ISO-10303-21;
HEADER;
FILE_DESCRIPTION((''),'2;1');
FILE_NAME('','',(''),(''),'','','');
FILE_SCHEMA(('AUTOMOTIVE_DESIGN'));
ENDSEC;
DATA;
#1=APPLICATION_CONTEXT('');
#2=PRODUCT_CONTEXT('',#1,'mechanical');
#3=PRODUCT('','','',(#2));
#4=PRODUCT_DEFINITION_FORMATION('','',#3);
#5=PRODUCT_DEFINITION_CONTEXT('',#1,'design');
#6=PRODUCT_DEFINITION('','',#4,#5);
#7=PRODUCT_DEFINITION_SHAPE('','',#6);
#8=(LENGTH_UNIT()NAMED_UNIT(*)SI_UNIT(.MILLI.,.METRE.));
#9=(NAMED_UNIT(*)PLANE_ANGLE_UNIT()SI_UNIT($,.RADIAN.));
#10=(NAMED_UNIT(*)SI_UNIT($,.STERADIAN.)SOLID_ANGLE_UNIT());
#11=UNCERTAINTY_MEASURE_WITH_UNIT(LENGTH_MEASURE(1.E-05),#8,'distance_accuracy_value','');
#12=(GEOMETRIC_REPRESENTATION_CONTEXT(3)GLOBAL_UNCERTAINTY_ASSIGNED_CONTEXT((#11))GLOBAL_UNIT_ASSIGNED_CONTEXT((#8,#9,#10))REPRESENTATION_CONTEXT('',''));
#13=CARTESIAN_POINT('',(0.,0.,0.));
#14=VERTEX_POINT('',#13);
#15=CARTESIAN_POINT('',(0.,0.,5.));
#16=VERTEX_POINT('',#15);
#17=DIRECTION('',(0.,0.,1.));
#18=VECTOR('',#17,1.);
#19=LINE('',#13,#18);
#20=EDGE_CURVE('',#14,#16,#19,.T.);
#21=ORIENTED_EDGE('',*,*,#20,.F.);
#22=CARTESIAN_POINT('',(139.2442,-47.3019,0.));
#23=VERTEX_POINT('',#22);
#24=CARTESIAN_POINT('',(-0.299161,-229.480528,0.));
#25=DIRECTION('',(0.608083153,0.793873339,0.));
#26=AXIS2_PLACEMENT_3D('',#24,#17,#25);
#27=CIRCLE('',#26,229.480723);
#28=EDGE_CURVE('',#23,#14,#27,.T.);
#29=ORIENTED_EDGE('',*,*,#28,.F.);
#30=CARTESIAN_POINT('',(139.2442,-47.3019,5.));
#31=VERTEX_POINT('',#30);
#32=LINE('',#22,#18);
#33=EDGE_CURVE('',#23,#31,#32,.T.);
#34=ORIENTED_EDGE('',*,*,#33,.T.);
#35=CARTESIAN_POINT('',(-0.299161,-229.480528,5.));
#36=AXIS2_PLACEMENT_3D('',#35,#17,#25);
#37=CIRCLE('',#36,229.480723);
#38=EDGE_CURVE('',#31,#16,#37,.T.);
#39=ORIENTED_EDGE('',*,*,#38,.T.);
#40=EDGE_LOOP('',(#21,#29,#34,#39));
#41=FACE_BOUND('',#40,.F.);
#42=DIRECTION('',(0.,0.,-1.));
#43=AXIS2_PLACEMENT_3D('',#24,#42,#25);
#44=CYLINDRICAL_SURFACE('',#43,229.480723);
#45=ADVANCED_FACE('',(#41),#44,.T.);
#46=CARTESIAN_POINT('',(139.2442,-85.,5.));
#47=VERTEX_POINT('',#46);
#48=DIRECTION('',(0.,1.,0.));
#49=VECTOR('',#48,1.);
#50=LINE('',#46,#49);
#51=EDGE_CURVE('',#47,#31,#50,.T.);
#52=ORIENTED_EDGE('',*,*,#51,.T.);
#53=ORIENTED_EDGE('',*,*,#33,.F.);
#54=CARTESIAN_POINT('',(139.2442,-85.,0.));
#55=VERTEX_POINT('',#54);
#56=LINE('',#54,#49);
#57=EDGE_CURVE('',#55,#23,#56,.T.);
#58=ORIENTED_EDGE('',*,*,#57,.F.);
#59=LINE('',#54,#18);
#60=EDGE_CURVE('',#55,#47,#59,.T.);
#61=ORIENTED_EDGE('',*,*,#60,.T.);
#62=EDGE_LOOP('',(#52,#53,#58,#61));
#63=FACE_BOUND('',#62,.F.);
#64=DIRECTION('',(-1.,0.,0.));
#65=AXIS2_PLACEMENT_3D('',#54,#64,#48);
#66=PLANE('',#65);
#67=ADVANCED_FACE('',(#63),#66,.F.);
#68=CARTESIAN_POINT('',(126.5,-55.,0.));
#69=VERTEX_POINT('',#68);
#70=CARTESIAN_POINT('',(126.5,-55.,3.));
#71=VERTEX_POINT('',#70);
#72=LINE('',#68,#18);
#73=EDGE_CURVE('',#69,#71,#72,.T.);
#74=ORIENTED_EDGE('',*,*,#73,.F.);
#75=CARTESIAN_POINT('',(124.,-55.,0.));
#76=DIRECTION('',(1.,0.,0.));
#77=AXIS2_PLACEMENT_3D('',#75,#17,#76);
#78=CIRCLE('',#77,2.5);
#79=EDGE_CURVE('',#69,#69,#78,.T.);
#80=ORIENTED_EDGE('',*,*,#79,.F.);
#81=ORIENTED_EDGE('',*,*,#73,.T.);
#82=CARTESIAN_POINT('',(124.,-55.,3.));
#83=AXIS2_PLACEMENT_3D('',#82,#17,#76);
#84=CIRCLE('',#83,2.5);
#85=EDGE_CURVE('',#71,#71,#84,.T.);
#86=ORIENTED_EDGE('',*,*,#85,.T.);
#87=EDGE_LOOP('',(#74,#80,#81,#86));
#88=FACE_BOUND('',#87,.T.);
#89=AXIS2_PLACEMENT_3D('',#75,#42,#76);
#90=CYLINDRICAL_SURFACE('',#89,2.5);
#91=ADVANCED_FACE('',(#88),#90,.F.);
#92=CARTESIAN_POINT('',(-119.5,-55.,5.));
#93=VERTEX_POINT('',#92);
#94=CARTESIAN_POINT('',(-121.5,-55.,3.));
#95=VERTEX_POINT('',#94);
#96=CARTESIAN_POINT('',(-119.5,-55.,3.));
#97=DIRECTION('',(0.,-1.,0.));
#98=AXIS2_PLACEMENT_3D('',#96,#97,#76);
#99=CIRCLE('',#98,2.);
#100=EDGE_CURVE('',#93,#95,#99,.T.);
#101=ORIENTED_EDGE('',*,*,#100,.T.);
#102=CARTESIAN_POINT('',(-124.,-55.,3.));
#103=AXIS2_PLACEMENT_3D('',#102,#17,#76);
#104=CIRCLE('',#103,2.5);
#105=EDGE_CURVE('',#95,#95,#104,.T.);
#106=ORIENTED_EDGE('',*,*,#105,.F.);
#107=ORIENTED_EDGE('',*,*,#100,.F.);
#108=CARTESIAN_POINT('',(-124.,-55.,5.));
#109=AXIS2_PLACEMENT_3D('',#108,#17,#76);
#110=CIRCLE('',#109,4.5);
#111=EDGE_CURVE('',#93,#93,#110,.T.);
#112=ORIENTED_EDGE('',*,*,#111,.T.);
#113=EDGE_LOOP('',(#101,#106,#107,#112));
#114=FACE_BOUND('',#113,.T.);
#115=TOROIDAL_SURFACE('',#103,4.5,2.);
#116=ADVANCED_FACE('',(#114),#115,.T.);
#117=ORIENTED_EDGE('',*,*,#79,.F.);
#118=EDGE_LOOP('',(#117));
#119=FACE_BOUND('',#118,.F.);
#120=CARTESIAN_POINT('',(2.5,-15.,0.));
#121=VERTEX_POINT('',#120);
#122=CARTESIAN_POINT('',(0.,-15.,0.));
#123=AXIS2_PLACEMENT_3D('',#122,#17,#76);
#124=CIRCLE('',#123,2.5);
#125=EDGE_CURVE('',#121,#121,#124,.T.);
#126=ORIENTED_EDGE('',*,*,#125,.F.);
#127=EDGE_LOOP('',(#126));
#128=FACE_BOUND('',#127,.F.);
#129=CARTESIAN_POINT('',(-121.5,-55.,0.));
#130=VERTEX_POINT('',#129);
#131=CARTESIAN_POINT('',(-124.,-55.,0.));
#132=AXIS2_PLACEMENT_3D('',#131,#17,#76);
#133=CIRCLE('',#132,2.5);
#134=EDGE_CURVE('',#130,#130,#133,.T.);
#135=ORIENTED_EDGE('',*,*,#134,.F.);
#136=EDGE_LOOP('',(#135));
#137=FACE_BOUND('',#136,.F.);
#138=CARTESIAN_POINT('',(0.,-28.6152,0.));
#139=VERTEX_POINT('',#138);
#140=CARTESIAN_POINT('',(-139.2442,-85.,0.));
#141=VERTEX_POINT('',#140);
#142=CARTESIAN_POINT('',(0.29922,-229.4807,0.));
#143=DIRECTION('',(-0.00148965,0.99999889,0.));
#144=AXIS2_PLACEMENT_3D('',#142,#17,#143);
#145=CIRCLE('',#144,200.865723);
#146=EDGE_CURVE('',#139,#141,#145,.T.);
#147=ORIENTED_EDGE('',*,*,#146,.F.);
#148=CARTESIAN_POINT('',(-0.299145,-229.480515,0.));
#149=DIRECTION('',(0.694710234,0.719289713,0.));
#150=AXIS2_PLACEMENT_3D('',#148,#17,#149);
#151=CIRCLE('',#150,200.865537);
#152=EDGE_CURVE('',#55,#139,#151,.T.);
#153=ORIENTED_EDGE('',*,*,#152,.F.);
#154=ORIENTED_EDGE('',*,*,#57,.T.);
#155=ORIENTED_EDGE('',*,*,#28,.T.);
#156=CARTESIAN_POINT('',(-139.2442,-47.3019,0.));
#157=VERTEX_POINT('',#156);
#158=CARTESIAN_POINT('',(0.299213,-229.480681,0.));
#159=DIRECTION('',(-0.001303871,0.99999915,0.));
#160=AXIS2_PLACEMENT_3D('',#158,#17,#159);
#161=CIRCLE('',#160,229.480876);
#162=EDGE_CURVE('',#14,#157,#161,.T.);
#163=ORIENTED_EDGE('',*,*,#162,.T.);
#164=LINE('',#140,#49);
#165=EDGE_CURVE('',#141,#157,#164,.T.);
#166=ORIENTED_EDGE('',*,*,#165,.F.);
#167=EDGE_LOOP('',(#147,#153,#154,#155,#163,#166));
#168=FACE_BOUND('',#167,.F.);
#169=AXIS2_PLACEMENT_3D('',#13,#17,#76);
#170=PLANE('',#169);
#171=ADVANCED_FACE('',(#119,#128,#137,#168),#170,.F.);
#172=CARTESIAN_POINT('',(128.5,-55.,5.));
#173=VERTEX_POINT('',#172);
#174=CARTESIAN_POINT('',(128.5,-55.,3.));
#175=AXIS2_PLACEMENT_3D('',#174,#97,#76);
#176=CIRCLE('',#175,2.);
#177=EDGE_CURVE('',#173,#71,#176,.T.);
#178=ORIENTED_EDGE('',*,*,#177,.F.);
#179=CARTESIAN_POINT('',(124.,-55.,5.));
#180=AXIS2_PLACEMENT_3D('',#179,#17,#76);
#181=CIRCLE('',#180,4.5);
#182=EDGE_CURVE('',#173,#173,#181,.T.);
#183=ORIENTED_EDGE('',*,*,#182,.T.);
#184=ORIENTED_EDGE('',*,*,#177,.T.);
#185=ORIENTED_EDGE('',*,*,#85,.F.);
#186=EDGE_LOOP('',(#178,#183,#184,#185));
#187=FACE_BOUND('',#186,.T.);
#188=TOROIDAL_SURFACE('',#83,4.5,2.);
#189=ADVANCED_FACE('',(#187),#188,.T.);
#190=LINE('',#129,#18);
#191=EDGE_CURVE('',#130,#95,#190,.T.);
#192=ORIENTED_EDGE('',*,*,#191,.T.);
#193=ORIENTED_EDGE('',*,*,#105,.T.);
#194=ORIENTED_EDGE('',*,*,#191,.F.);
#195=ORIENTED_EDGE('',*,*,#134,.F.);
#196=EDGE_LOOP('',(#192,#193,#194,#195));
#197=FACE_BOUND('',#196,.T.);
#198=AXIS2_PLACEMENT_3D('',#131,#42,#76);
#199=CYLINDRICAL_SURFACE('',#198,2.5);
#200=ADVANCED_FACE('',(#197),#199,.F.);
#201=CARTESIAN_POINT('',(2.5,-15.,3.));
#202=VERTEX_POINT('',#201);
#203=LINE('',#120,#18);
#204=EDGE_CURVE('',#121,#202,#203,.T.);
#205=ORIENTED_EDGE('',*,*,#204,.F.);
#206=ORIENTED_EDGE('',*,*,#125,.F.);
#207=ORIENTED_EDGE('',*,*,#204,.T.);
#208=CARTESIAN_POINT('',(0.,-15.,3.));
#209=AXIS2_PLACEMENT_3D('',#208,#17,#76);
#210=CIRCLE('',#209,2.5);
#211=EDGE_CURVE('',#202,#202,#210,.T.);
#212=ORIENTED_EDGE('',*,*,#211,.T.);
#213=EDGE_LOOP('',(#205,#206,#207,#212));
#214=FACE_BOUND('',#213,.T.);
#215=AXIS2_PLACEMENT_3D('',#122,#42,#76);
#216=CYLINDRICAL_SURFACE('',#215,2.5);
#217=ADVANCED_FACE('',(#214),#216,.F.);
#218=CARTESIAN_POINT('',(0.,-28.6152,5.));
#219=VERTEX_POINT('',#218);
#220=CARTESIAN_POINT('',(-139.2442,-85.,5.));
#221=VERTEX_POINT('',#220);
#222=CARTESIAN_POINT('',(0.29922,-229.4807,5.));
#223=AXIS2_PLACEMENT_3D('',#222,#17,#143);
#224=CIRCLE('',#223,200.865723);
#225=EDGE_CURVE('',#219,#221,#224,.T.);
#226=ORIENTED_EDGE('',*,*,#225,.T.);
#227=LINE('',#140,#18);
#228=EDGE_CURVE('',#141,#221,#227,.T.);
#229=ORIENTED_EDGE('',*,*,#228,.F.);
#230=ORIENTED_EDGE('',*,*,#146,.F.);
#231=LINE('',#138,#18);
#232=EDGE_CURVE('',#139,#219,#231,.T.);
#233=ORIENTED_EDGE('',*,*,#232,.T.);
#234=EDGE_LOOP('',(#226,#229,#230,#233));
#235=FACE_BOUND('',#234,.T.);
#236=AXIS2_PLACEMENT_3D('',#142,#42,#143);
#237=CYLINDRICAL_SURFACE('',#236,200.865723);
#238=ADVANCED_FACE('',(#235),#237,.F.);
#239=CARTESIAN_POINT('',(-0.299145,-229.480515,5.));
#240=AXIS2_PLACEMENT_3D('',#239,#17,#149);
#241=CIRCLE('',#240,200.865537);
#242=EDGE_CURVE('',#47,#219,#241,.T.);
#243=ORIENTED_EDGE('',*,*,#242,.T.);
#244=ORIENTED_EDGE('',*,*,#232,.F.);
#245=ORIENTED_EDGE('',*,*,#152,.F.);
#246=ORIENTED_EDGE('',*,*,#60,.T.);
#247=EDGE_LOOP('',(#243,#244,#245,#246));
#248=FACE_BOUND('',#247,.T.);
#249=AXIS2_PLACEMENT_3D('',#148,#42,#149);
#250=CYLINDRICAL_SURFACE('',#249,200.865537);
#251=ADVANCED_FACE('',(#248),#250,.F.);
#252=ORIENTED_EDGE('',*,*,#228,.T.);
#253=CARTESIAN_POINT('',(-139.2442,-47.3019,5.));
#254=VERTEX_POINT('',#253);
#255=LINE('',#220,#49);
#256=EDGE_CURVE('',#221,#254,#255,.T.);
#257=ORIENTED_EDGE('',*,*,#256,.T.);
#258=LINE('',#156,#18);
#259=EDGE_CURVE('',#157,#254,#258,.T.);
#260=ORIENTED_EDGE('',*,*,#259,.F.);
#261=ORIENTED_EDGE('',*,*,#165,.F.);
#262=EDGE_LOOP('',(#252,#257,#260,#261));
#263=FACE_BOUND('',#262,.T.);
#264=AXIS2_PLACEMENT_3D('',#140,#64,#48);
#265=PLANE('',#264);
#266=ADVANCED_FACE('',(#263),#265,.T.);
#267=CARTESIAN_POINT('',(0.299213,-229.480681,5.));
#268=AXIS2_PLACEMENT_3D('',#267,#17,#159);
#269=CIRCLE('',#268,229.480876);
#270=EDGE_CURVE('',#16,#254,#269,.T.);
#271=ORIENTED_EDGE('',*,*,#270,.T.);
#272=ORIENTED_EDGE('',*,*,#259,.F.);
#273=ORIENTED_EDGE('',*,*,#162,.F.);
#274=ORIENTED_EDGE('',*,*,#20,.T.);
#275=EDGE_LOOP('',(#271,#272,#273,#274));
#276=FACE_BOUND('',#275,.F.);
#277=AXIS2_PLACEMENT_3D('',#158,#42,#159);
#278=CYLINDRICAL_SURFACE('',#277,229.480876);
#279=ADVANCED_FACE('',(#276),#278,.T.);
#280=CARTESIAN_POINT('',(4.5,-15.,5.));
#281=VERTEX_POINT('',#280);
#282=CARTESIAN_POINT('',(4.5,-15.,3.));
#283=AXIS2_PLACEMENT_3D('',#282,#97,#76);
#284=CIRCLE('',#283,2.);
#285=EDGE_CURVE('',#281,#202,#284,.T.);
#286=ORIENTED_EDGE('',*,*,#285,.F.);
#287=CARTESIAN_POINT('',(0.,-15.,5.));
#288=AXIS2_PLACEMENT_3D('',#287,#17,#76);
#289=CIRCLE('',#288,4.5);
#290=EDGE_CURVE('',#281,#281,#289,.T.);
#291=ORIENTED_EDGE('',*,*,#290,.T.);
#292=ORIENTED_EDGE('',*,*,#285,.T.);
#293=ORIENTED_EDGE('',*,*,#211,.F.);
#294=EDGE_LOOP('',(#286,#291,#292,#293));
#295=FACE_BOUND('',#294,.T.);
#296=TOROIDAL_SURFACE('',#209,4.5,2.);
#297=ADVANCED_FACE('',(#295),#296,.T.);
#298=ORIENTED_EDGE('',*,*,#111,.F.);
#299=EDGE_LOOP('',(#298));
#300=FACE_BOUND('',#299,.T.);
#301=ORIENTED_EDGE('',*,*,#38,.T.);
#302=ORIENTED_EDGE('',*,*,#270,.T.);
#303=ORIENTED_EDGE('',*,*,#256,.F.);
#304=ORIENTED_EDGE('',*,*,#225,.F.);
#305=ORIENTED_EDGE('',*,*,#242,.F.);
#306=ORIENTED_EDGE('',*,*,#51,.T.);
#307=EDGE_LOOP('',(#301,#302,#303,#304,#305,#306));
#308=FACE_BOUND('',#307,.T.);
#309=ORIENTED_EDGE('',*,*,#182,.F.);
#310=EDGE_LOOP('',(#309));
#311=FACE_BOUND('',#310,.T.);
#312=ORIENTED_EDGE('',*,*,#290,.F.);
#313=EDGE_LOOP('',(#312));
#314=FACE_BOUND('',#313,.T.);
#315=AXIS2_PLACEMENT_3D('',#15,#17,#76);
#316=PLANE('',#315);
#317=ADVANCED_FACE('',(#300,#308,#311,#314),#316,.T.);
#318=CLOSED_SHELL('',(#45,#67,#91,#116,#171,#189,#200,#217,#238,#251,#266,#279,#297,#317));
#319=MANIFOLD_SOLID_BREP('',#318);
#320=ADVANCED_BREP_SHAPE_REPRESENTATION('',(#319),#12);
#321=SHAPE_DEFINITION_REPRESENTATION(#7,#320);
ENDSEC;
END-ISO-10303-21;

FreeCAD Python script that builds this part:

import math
import FreeCAD as App
import Part
import Sketcher
from FreeCAD import Vector
Q = App.Units.Quantity


def edges_at(feature, points):
    """Names of the edges that pass closest to the given points."""
    edges = feature.Shape.Edges
    near = lambda p: min(range(len(edges)), key=lambda i: edges[i].distToShape(Part.Vertex(*p))[0])
    return sorted({f"Edge{near(p) + 1}" for p in points})

doc = App.newDocument("Part")
body = doc.addObject("PartDesign::Body", "Body")

sketch1 = body.newObject("Sketcher::SketchObject", "Sketch")
sketch1.AttachmentSupport = (doc.getObject("XY_Plane"), [""])
sketch1.MapMode = "FlatFace"
sketch1.addGeometry([
    Part.LineSegment(Vector(-139.2442, -47.3019, 0), Vector(-139.2442, -85, 0)),
    Part.ArcOfCircle(Part.Circle(Vector(0.2992, -229.4806, 0), Vector(0, 0, 1), 200.865623), math.radians(90.085345), math.radians(134.004126)),
    Part.ArcOfCircle(Part.Circle(Vector(-0.2992, -229.4806, 0), Vector(0, 0, 1), 200.865637), math.radians(45.995874), math.radians(89.914655)),
    Part.LineSegment(Vector(139.2442, -85, 0), Vector(139.2442, -47.3019, 0)),
    Part.ArcOfCircle(Part.Circle(Vector(-0.2992, -229.4806, 0), Vector(0, 0, 1), 229.480804), math.radians(52.548972), math.radians(89.925297)),
    Part.ArcOfCircle(Part.Circle(Vector(0.2992, -229.4806, 0), Vector(0, 0, 1), 229.480795), math.radians(90.074703), math.radians(127.451028)),
    Part.Circle(Vector(-124, -55, 0), Vector(0, 0, 1), 2.5),
    Part.Circle(Vector(124, -55, 0), Vector(0, 0, 1), 2.5),
    Part.Circle(Vector(0, -15, 0), Vector(0, 0, 1), 2.5),
], False)
sketch1.addConstraint([
    Sketcher.Constraint("Coincident", 0, 2, 1, 2),
    Sketcher.Constraint("Coincident", 1, 1, 2, 2),
    Sketcher.Constraint("Coincident", 2, 1, 3, 1),
    Sketcher.Constraint("Coincident", 3, 2, 4, 1),
    Sketcher.Constraint("Coincident", 4, 2, 5, 1),
    Sketcher.Constraint("Coincident", 5, 2, 0, 1),
    Sketcher.Constraint("Vertical", 0),
    Sketcher.Constraint("Vertical", 3),
    Sketcher.Constraint("Coincident", 4, 2, -1, 1),
    Sketcher.Constraint("Coincident", 4, 3, 2, 3),
    Sketcher.Constraint("Coincident", 5, 3, 1, 3),
    Sketcher.Constraint("Equal", 1, 2),
    Sketcher.Constraint("Equal", 4, 5),
    Sketcher.Constraint("Equal", 6, 7),
    Sketcher.Constraint("Equal", 7, 8),
    Sketcher.Constraint("Symmetric", 6, 3, 7, 3, -2),
    Sketcher.Constraint("Symmetric", 0, 2, 2, 1, -2),
    Sketcher.Constraint("PointOnObject", 8, 3, -2),
    Sketcher.Constraint("Diameter", 6, Q("5 mm")),
    Sketcher.Constraint("DistanceX", 6, 3, -1, 1, Q("124 mm")),
    Sketcher.Constraint("DistanceY", 6, 3, -1, 1, Q("55 mm")),
    Sketcher.Constraint("DistanceY", 8, 3, -1, 1, Q("15 mm")),
    Sketcher.Constraint("DistanceY", 0, 2, -1, 1, Q("85 mm")),
    Sketcher.Constraint("Radius", 1, Q("200.8656 mm")),
    Sketcher.Constraint("DistanceX", 0, 2, -1, 1, Q("139.2442 mm")),
    Sketcher.Constraint("Radius", 4, Q("229.4808 mm")),
])
pad1 = body.newObject("PartDesign::Pad", "Pad")
pad1.Profile = sketch1
pad1.Length = 5
doc.recompute()

fillet = body.newObject("PartDesign::Fillet", "Fillet")
fillet.Base = (pad1, edges_at(pad1, [(-126.5, -55, 5), (-2.5, -15, 5), (121.5, -55, 5)]))
fillet.Radius = 2

doc.recompute()
